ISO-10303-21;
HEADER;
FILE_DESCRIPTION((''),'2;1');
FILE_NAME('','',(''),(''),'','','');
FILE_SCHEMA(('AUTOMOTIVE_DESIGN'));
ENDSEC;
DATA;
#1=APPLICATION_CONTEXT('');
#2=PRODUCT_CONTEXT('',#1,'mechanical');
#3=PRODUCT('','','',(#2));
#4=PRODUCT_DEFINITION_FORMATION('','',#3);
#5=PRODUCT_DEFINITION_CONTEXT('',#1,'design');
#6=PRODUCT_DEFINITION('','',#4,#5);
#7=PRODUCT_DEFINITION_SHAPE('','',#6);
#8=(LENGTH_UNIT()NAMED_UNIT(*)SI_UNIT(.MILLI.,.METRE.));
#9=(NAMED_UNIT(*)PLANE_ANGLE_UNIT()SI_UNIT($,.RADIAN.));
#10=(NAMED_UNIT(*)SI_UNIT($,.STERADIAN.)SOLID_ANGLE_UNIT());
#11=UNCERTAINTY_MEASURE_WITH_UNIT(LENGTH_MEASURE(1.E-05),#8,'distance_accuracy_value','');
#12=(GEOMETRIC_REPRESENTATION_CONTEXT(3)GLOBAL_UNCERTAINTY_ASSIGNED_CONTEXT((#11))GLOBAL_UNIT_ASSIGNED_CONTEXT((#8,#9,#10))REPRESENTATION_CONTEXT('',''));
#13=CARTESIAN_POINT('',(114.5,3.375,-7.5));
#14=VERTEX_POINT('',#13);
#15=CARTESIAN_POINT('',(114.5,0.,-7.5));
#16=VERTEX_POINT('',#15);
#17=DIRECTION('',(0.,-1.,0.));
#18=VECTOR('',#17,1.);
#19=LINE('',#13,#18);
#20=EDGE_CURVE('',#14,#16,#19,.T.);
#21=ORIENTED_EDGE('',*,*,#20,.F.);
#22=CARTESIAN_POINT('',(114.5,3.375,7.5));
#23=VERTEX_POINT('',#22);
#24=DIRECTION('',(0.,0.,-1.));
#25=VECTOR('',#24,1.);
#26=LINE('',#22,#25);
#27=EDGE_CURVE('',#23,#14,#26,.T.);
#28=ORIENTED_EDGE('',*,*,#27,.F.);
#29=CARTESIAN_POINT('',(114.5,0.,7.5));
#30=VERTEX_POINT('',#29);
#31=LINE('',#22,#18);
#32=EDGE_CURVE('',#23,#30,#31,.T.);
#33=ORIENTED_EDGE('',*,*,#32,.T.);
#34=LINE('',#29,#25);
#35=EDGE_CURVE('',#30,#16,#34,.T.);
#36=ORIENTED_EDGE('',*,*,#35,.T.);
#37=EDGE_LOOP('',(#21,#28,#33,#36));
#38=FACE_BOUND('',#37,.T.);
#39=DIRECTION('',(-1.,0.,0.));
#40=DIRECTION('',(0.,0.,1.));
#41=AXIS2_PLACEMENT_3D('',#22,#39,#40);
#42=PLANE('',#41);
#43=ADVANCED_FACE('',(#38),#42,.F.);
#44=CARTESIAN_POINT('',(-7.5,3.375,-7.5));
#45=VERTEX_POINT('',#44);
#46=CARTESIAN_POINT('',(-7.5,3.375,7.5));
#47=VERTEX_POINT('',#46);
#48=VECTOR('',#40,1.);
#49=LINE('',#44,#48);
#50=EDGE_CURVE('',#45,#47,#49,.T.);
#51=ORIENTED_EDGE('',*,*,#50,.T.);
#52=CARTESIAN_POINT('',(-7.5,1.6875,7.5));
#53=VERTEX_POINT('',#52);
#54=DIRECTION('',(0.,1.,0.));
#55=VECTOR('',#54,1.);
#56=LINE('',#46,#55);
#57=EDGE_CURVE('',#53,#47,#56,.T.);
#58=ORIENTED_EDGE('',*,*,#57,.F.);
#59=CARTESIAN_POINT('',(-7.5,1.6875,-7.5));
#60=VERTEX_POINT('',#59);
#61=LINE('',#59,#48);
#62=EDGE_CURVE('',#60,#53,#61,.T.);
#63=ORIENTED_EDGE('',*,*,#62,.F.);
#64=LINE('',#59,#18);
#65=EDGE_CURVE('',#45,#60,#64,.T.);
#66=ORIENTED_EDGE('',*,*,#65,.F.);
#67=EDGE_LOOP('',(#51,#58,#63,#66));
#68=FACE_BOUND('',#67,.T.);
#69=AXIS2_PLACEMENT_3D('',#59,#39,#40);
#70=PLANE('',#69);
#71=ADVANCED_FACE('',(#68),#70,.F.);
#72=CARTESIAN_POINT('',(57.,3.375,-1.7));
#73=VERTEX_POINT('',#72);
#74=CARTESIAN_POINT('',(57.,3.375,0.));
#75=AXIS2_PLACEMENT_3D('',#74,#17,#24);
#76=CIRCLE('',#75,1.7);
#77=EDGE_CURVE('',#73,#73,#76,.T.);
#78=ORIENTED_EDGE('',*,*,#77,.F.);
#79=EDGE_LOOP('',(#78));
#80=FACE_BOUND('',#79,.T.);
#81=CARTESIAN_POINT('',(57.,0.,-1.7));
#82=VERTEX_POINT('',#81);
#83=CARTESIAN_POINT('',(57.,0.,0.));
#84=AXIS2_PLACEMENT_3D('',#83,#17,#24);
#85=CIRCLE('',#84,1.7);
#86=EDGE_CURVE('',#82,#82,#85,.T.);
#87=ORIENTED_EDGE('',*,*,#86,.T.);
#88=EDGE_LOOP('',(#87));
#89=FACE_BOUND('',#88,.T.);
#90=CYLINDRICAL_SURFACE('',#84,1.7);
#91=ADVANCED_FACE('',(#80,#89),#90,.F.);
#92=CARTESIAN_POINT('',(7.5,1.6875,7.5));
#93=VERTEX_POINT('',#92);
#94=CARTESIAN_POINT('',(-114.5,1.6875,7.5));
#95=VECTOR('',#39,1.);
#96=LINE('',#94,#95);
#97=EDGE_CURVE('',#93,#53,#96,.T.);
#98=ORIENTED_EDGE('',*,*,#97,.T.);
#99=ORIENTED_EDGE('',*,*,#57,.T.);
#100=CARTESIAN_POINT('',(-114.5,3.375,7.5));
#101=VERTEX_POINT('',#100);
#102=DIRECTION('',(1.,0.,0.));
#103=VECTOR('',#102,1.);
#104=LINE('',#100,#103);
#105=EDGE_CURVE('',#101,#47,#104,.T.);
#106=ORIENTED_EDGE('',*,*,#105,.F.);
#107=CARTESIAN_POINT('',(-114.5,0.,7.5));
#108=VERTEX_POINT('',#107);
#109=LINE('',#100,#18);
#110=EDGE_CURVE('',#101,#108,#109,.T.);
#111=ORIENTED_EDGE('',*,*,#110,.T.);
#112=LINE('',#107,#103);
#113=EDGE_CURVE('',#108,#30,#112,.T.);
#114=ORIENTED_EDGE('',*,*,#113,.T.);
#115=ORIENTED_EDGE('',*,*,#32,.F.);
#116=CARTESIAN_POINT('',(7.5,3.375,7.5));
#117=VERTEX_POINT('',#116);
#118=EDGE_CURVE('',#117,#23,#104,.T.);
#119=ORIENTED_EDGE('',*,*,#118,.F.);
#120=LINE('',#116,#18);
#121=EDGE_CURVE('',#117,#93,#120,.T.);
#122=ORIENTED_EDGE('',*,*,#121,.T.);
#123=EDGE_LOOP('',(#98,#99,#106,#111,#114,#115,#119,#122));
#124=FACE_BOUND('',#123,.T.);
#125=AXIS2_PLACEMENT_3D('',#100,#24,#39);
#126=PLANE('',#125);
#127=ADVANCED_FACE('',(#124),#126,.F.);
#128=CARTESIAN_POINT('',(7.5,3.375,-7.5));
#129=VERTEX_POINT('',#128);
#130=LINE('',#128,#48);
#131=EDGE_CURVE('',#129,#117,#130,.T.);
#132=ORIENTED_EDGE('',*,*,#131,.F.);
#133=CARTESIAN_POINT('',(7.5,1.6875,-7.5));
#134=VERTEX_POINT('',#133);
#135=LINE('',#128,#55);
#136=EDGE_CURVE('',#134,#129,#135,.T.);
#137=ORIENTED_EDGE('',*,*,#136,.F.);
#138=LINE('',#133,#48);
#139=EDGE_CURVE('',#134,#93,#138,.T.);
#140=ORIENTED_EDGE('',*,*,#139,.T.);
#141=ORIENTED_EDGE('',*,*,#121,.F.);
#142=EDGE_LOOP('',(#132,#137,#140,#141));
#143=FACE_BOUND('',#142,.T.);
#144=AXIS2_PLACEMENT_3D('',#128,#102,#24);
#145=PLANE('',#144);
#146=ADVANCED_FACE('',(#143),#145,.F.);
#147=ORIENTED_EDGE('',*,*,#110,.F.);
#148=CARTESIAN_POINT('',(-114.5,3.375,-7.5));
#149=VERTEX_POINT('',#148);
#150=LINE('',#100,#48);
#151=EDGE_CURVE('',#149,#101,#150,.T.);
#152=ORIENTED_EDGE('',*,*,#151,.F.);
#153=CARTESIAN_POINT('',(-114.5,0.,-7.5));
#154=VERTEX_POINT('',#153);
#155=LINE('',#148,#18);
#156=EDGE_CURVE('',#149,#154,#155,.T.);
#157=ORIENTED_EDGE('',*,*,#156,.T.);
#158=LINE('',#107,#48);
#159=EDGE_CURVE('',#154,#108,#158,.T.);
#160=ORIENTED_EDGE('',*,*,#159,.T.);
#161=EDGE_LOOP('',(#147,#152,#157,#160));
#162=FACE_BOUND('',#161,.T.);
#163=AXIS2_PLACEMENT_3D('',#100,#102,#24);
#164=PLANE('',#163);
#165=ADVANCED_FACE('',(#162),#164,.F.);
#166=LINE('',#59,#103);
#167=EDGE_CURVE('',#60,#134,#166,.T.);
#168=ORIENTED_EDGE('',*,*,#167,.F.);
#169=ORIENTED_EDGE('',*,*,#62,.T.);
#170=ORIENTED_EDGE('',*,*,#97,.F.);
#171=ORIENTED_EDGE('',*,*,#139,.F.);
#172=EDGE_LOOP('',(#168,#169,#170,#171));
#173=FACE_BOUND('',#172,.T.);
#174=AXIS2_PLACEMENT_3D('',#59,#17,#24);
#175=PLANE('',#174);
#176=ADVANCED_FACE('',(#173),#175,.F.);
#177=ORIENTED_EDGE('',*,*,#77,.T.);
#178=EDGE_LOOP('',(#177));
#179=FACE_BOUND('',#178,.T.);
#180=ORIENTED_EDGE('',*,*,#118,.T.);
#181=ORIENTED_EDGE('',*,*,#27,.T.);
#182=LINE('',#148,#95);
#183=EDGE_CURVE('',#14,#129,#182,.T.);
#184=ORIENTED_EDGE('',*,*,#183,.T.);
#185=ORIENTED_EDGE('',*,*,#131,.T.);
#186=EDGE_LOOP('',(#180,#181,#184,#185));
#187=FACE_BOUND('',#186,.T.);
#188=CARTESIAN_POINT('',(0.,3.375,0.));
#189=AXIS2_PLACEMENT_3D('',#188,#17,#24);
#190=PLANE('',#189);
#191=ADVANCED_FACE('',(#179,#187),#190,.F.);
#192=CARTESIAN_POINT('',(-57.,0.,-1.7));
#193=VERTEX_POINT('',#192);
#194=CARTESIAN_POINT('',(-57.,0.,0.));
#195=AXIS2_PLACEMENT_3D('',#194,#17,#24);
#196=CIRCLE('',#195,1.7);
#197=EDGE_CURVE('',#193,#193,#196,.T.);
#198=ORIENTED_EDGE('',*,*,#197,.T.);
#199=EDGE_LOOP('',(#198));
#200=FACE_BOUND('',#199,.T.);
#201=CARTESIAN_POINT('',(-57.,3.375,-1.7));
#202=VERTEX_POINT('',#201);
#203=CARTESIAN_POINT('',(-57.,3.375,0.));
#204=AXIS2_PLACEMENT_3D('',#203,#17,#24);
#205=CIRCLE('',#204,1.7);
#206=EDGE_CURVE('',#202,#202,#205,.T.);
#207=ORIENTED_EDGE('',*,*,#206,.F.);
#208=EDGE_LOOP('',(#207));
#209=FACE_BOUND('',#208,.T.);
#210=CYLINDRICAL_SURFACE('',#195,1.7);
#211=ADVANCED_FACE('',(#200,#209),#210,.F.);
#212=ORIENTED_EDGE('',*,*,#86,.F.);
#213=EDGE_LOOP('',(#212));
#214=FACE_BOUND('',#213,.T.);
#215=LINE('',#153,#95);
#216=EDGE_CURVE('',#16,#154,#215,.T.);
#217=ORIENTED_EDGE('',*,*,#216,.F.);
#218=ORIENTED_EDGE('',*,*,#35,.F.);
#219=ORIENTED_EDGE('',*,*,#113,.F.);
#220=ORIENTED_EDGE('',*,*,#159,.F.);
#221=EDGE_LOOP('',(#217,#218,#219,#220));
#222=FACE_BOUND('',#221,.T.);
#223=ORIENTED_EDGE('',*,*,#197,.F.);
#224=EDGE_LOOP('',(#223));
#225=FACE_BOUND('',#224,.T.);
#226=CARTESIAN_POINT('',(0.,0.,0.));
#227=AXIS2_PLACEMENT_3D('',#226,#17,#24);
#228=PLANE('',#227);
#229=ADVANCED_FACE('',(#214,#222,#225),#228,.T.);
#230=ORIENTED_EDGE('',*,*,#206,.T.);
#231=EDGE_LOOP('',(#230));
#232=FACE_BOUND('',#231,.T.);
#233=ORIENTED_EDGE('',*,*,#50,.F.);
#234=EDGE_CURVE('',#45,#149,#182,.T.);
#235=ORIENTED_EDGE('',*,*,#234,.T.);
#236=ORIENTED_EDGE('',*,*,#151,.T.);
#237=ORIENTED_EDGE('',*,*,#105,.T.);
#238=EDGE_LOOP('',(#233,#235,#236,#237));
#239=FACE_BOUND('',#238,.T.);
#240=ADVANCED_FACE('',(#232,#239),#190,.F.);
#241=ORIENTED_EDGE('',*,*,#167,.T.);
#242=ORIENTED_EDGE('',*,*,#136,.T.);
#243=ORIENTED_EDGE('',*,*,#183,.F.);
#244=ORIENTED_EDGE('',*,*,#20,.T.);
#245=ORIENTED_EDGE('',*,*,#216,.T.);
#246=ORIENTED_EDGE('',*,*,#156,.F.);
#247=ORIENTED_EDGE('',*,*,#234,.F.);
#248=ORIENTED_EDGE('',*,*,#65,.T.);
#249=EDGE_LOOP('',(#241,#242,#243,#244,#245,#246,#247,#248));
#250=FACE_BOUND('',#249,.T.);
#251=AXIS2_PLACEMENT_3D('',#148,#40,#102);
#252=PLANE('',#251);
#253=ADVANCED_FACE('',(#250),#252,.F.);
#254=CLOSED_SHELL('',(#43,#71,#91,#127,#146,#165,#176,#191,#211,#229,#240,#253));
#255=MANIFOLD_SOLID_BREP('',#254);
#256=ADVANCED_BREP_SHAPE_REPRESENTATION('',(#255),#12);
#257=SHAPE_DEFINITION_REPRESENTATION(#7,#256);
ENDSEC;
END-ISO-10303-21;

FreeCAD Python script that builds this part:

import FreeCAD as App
import Part
import Sketcher

doc = App.newDocument("Part")
body = doc.addObject("PartDesign::Body", "Body")

# Sketch on XZ plane
sketch1 = body.newObject("Sketcher::SketchObject", "Sketch")
sketch1.AttachmentSupport = (doc.getObject("XZ_Plane"), [""])
sketch1.MapMode = "FlatFace"
sketch1.addGeometry([
    Part.LineSegment(App.Vector(-114, -8, 0), App.Vector(-114, 8, 0)),
    Part.LineSegment(App.Vector(-114, 8, 0), App.Vector(114, 8, 0)),
    Part.LineSegment(App.Vector(114, 8, 0), App.Vector(114, -8, 0)),
    Part.LineSegment(App.Vector(114, -8, 0), App.Vector(-114, -8, 0)),
], False)
sketch1.addConstraint([
    Sketcher.Constraint("Coincident", 0, 2, 1, 1),
    Sketcher.Constraint("Coincident", 1, 2, 2, 1),
    Sketcher.Constraint("Coincident", 2, 2, 3, 1),
    Sketcher.Constraint("Coincident", 3, 2, 0, 1),
    Sketcher.Constraint("Vertical", 0),
    Sketcher.Constraint("Horizontal", 1),
    Sketcher.Constraint("Vertical", 2),
    Sketcher.Constraint("Horizontal", 3),
    Sketcher.Constraint("Symmetric", 0, 2, 2, 2, -1, 1),
    Sketcher.Constraint("DistanceX", 1, 1, 1, 2, 229.0),
    Sketcher.Constraint("DistanceY", 0, 1, 0, 2, 15.0),
])
pad1 = body.newObject("PartDesign::Pad", "Pad")
pad1.Profile = sketch1
pad1.Length = 3.375
pad1.Reversed = True

# Sketch on XZ plane
sketch2 = body.newObject("Sketcher::SketchObject", "Sketch001")
sketch2.AttachmentSupport = (doc.getObject("XZ_Plane"), [""])
sketch2.MapMode = "FlatFace"
sketch2.addGeometry([
    Part.Circle(App.Vector(-57, 0, 0), App.Vector(0, 0, 1), 1.7),
    Part.Circle(App.Vector(57, 0, 0), App.Vector(0, 0, 1), 1.7),
], False)
sketch2.addConstraint([
    Sketcher.Constraint("Equal", 0, 1),
    Sketcher.Constraint("Symmetric", 0, 3, 1, 3, -1, 1),
    Sketcher.Constraint("PointOnObject", 0, 3, -1),
    Sketcher.Constraint("Diameter", 0, 3.4),
    Sketcher.Constraint("DistanceX", 0, 3, -1, 1, 57.0),
])
doc.recompute()
hole = body.newObject("PartDesign::Hole", "Hole")
hole.Profile = sketch2
hole.ThreadType = "None"
hole.Diameter = 3.4
hole.DepthType = "ThroughAll"

# Sketch on XY plane
sketch3 = body.newObject("Sketcher::SketchObject", "Sketch002")
sketch3.AttachmentSupport = (doc.getObject("XY_Plane"), [""])
sketch3.MapMode = "FlatFace"
sketch3.AttachmentOffset = App.Placement(App.Vector(0, 0, 7.5), App.Rotation())
sketch3.addGeometry([
    Part.LineSegment(App.Vector(-7.5, 3.4, 0), App.Vector(-7.5, 1.7, 0)),
    Part.LineSegment(App.Vector(-7.5, 1.7, 0), App.Vector(7.5, 1.7, 0)),
    Part.LineSegment(App.Vector(7.5, 1.7, 0), App.Vector(7.5, 3.4, 0)),
    Part.LineSegment(App.Vector(7.5, 3.4, 0), App.Vector(-7.5, 3.4, 0)),
], False)
sketch3.addConstraint([
    Sketcher.Constraint("Coincident", 0, 2, 1, 1),
    Sketcher.Constraint("Coincident", 1, 2, 2, 1),
    Sketcher.Constraint("Coincident", 2, 2, 3, 1),
    Sketcher.Constraint("Coincident", 3, 2, 0, 1),
    Sketcher.Constraint("Vertical", 0),
    Sketcher.Constraint("Horizontal", 1),
    Sketcher.Constraint("Vertical", 2),
    Sketcher.Constraint("Horizontal", 3),
    Sketcher.Constraint("DistanceX", 1, 1, 1, 2, 15.0),
    Sketcher.Constraint("DistanceX", 0, 2, -1, 1, 7.5),
    Sketcher.Constraint("DistanceY", 0, 2, 0, 1, 1.6875),
    Sketcher.Constraint("DistanceY", -1, 1, 2, 2, 3.375),
])
pocket1 = body.newObject("PartDesign::Pocket", "Pocket")
pocket1.Profile = sketch3
pocket1.Type = "ThroughAll"
pocket1.Midplane = True

doc.recompute()
